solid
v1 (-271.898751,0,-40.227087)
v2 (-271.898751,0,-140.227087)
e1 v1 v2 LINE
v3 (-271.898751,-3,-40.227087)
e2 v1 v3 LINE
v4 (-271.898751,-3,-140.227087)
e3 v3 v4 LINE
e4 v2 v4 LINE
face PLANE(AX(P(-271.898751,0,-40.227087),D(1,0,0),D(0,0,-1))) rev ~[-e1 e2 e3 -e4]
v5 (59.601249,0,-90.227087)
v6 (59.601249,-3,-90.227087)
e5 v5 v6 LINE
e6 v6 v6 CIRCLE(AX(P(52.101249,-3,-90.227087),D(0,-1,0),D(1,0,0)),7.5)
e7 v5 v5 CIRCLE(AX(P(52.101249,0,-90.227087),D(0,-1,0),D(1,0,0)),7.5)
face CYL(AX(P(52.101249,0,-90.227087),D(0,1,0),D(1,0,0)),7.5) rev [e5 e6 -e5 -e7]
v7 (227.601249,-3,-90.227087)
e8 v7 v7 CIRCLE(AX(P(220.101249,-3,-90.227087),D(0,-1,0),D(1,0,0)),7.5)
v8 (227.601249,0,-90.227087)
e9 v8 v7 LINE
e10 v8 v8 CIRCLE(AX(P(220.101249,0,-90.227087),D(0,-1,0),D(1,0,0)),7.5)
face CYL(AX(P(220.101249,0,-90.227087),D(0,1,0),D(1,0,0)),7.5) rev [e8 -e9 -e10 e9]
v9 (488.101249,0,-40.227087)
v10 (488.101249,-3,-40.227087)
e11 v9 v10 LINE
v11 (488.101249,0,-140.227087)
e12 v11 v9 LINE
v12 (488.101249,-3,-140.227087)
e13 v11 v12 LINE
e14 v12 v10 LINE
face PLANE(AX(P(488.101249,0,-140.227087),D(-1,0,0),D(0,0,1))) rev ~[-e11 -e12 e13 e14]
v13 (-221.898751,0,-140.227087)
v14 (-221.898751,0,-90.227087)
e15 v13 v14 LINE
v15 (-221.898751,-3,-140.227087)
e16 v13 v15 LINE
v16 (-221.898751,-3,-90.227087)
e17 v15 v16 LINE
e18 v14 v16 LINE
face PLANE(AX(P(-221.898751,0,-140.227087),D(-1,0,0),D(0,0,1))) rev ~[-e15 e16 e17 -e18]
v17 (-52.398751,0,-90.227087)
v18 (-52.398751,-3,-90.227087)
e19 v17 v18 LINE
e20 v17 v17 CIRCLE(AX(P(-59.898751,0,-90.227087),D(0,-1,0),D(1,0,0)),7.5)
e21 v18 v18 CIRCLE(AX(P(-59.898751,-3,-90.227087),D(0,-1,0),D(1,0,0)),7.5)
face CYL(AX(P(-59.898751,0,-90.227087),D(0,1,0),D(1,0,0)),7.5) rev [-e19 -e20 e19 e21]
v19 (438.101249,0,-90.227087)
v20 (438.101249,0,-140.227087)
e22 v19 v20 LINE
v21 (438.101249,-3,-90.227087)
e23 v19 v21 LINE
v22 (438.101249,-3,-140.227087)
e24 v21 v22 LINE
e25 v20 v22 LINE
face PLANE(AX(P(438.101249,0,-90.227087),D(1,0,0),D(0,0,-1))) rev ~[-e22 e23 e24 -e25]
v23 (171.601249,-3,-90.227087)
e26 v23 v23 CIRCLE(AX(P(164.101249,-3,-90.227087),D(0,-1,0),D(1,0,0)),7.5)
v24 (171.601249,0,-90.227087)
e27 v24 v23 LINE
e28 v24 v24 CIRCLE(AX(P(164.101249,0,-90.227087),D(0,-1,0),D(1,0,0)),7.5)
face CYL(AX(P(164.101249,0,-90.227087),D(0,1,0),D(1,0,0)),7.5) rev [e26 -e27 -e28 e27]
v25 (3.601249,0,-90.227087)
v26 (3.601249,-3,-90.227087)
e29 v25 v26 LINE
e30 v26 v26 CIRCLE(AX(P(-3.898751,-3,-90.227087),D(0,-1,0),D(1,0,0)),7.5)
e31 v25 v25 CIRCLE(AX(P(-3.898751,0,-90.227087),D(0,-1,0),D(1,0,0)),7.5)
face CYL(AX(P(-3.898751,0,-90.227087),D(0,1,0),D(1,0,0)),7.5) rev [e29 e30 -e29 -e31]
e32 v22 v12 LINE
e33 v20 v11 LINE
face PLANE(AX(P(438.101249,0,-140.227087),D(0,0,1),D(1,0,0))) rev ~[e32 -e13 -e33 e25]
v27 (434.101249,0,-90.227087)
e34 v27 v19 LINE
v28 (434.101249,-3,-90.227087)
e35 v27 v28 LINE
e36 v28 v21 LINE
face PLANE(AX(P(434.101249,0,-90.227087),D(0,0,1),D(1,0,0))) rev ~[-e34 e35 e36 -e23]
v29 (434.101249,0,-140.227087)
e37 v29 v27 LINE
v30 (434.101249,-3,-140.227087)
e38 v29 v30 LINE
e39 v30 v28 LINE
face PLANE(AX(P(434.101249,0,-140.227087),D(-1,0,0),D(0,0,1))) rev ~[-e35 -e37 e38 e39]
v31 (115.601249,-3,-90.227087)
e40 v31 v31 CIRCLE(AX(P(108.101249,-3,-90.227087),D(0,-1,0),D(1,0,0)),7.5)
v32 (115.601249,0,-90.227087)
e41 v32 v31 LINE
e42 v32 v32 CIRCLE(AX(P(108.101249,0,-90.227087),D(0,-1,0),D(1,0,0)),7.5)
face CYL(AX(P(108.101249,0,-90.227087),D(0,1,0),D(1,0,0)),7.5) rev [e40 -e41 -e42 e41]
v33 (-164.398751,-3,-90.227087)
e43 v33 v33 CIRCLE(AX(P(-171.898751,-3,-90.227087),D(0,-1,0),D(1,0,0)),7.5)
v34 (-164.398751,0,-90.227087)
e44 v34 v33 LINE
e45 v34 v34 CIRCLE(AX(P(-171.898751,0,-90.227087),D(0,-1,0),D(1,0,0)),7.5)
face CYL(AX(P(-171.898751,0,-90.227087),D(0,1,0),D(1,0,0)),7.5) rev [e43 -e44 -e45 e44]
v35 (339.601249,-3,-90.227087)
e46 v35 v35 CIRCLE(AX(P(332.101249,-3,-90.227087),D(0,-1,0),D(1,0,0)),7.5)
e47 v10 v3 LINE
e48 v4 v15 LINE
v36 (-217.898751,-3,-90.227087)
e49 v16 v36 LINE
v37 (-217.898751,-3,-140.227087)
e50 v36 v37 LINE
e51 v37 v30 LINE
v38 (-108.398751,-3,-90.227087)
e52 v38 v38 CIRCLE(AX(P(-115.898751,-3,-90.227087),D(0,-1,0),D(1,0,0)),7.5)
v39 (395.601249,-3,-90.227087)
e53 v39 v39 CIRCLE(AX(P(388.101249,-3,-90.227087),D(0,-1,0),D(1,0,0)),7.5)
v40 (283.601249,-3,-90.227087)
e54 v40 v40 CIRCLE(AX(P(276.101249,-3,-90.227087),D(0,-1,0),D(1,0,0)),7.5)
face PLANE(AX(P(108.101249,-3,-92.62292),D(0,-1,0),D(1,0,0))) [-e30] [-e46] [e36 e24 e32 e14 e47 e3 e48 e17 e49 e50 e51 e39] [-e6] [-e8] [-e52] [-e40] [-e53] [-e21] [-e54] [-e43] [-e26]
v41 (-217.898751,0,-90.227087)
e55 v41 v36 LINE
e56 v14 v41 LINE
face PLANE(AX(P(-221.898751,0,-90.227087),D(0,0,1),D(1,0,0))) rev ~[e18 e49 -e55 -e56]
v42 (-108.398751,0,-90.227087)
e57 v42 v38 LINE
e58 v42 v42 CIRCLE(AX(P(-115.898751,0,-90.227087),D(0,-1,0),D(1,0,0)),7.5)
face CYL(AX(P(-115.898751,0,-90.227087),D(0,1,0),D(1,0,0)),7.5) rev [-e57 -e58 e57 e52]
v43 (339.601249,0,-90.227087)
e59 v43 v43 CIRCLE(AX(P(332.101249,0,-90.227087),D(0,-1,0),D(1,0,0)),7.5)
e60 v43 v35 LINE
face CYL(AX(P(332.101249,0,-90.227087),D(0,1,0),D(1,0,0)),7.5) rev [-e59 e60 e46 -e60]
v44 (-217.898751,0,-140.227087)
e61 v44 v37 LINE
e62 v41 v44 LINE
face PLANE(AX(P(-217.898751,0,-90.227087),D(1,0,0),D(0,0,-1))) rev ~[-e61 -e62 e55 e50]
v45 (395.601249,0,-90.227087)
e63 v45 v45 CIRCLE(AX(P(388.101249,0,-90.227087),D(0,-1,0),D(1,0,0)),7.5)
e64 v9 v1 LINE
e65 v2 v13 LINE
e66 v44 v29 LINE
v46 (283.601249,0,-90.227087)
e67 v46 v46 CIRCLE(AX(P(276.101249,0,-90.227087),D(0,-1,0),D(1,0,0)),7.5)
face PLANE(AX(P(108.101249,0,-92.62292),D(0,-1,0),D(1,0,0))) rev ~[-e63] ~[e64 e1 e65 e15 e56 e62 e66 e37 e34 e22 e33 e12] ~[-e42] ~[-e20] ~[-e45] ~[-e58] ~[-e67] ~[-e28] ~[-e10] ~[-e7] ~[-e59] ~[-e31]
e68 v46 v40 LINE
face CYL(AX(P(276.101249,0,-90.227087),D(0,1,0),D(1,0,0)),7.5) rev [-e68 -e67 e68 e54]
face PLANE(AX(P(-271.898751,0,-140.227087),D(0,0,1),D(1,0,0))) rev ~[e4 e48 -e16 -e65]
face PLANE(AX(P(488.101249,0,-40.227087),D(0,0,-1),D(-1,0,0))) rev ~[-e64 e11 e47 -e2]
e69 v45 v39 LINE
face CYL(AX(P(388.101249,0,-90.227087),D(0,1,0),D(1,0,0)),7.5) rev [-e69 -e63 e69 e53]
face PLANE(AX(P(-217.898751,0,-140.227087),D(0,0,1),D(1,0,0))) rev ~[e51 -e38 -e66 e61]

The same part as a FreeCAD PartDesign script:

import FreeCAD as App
import Part
import Sketcher
from FreeCAD import Vector
Q = App.Units.Quantity

doc = App.newDocument("Part")
params = doc.addObject("Spreadsheet::Sheet", "Params")
for row, (alias, value) in enumerate([
    ("sketch1_diameter", "15 mm"),
    ("sketch1_width", "760 mm"),
    ("sketch1_width2", "50 mm"),
    ("sketch1_width3", "4 mm"),
    ("sketch1_height", "100 mm"),
    ("pad1_length", "3 mm"),
], start=1):
    params.set(f"A{row}", alias)
    params.set(f"B{row}", "=" + value)
    params.setAlias(f"B{row}", alias)

body = doc.addObject("PartDesign::Body", "Body")

sketch1 = body.newObject("Sketcher::SketchObject", "Sketch")
sketch1.AttachmentSupport = (doc.getObject("XZ_Plane"), [""])
sketch1.MapMode = "FlatFace"
sketch1.addGeometry([
    Part.LineSegment(Vector(488.1, -40.2, 0), Vector(-271.9, -40.2, 0)),
    Part.LineSegment(Vector(-271.9, -40.2, 0), Vector(-271.9, -140.2, 0)),
    Part.LineSegment(Vector(-271.9, -140.2, 0), Vector(-221.9, -140.2, 0)),
    Part.LineSegment(Vector(-221.9, -140.2, 0), Vector(-221.9, -90.2, 0)),
    Part.LineSegment(Vector(-221.9, -90.2, 0), Vector(-217.9, -90.2, 0)),
    Part.LineSegment(Vector(-217.9, -90.2, 0), Vector(-217.9, -140.2, 0)),
    Part.LineSegment(Vector(-217.9, -140.2, 0), Vector(434.1, -140.2, 0)),
    Part.LineSegment(Vector(434.1, -140.2, 0), Vector(434.1, -90.2, 0)),
    Part.LineSegment(Vector(434.1, -90.2, 0), Vector(438.1, -90.2, 0)),
    Part.LineSegment(Vector(438.1, -90.2, 0), Vector(438.1, -140.2, 0)),
    Part.LineSegment(Vector(438.1, -140.2, 0), Vector(488.1, -140.2, 0)),
    Part.LineSegment(Vector(488.1, -140.2, 0), Vector(488.1, -40.2, 0)),
    Part.Circle(Vector(-171.9, -90.2, 0), Vector(0, 0, 1), 7.5),
    Part.Circle(Vector(-115.9, -90.2, 0), Vector(0, 0, 1), 7.5),
    Part.Circle(Vector(-59.9, -90.2, 0), Vector(0, 0, 1), 7.5),
    Part.Circle(Vector(-3.9, -90.2, 0), Vector(0, 0, 1), 7.5),
    Part.Circle(Vector(52.1, -90.2, 0), Vector(0, 0, 1), 7.5),
    Part.Circle(Vector(108.1, -90.2, 0), Vector(0, 0, 1), 7.5),
    Part.Circle(Vector(164.1, -90.2, 0), Vector(0, 0, 1), 7.5),
    Part.Circle(Vector(220.1, -90.2, 0), Vector(0, 0, 1), 7.5),
    Part.Circle(Vector(276.1, -90.2, 0), Vector(0, 0, 1), 7.5),
    Part.Circle(Vector(332.1, -90.2, 0), Vector(0, 0, 1), 7.5),
    Part.Circle(Vector(388.1, -90.2, 0), Vector(0, 0, 1), 7.5),
], False)
sketch1.addConstraint([
    Sketcher.Constraint("Coincident", 0, 2, 1, 1),
    Sketcher.Constraint("Coincident", 1, 2, 2, 1),
    Sketcher.Constraint("Coincident", 2, 2, 3, 1),
    Sketcher.Constraint("Coincident", 3, 2, 4, 1),
    Sketcher.Constraint("Coincident", 4, 2, 5, 1),
    Sketcher.Constraint("Coincident", 5, 2, 6, 1),
    Sketcher.Constraint("Coincident", 6, 2, 7, 1),
    Sketcher.Constraint("Coincident", 7, 2, 8, 1),
    Sketcher.Constraint("Coincident", 8, 2, 9, 1),
    Sketcher.Constraint("Coincident", 9, 2, 10, 1),
    Sketcher.Constraint("Coincident", 10, 2, 11, 1),
    Sketcher.Constraint("Coincident", 11, 2, 0, 1),
    Sketcher.Constraint("Horizontal", 0),
    Sketcher.Constraint("Vertical", 1),
    Sketcher.Constraint("Horizontal", 2),
    Sketcher.Constraint("Vertical", 3),
    Sketcher.Constraint("Horizontal", 4),
    Sketcher.Constraint("Vertical", 5),
    Sketcher.Constraint("Horizontal", 6),
    Sketcher.Constraint("Vertical", 7),
    Sketcher.Constraint("Horizontal", 8),
    Sketcher.Constraint("Vertical", 9),
    Sketcher.Constraint("Horizontal", 10),
    Sketcher.Constraint("Vertical", 11),
    Sketcher.Constraint("Equal", 12, 13),
    Sketcher.Constraint("Equal", 13, 14),
    Sketcher.Constraint("Equal", 14, 15),
    Sketcher.Constraint("Equal", 15, 16),
    Sketcher.Constraint("Equal", 16, 17),
    Sketcher.Constraint("Equal", 17, 18),
    Sketcher.Constraint("Equal", 18, 19),
    Sketcher.Constraint("Equal", 19, 20),
    Sketcher.Constraint("Equal", 20, 21),
    Sketcher.Constraint("Equal", 21, 22),
    Sketcher.Constraint("Horizontal", 12, 3, 13, 3),
    Sketcher.Constraint("Horizontal", 13, 3, 14, 3),
    Sketcher.Constraint("Horizontal", 14, 3, 15, 3),
    Sketcher.Constraint("Horizontal", 15, 3, 16, 3),
    Sketcher.Constraint("Horizontal", 16, 3, 17, 3),
    Sketcher.Constraint("Horizontal", 17, 3, 18, 3),
    Sketcher.Constraint("Horizontal", 18, 3, 19, 3),
    Sketcher.Constraint("Horizontal", 19, 3, 20, 3),
    Sketcher.Constraint("Horizontal", 20, 3, 21, 3),
    Sketcher.Constraint("Horizontal", 21, 3, 22, 3),
    Sketcher.Constraint("Horizontal", 22, 3, 3, 2),
    Sketcher.Constraint("Horizontal", 2, 2, 5, 2),
    Sketcher.Constraint("Horizontal", 4, 2, 7, 2),
    Sketcher.Constraint("Horizontal", 6, 2, 9, 2),
    Sketcher.Constraint("Equal", 4, 8),
    Sketcher.Constraint("Equal", 2, 10),
    Sketcher.Constraint("Equal", 10, 3),
    Sketcher.Constraint("Diameter", 12, Q("15 mm")),
    Sketcher.Constraint("DistanceX", 0, 2, 0, 1, Q("760 mm")),
    Sketcher.Constraint("DistanceX", 2, 1, 2, 2, Q("50 mm")),
    Sketcher.Constraint("DistanceX", 4, 1, 4, 2, Q("4 mm")),
    Sketcher.Constraint("DistanceY", 1, 2, 1, 1, Q("100 mm")),
    Sketcher.Constraint("DistanceX", 12, 3, 13, 3, Q("56 mm")),
    Sketcher.Constraint("DistanceX", 13, 3, 14, 3, Q("56 mm")),
    Sketcher.Constraint("DistanceX", 14, 3, 15, 3, Q("56 mm")),
    Sketcher.Constraint("DistanceX", 15, 3, 16, 3, Q("56 mm")),
    Sketcher.Constraint("DistanceX", 16, 3, 17, 3, Q("56 mm")),
    Sketcher.Constraint("DistanceX", 17, 3, 18, 3, Q("56 mm")),
    Sketcher.Constraint("DistanceX", 18, 3, 19, 3, Q("56 mm")),
    Sketcher.Constraint("DistanceX", 19, 3, 20, 3, Q("56 mm")),
    Sketcher.Constraint("DistanceX", 20, 3, 21, 3, Q("56 mm")),
    Sketcher.Constraint("DistanceX", 21, 3, 22, 3, Q("56 mm")),
    Sketcher.Constraint("DistanceX", 0, 2, 12, 3, Q("100 mm")),
    Sketcher.Constraint("DistanceX", 12, 3, -1, 1, Q("171.898751 mm")),
    Sketcher.Constraint("DistanceY", 12, 3, -1, 1, Q("90.227087 mm")),
])
sketch1.setExpression("Constraints[51]", "Params.sketch1_diameter")
sketch1.setExpression("Constraints[52]", "Params.sketch1_width")
sketch1.setExpression("Constraints[53]", "Params.sketch1_width2")
sketch1.setExpression("Constraints[54]", "Params.sketch1_width3")
sketch1.setExpression("Constraints[55]", "Params.sketch1_height")
pad1 = body.newObject("PartDesign::Pad", "Pad")
pad1.Profile = sketch1
pad1.setExpression("Length", "Params.pad1_length")

doc.recompute()
